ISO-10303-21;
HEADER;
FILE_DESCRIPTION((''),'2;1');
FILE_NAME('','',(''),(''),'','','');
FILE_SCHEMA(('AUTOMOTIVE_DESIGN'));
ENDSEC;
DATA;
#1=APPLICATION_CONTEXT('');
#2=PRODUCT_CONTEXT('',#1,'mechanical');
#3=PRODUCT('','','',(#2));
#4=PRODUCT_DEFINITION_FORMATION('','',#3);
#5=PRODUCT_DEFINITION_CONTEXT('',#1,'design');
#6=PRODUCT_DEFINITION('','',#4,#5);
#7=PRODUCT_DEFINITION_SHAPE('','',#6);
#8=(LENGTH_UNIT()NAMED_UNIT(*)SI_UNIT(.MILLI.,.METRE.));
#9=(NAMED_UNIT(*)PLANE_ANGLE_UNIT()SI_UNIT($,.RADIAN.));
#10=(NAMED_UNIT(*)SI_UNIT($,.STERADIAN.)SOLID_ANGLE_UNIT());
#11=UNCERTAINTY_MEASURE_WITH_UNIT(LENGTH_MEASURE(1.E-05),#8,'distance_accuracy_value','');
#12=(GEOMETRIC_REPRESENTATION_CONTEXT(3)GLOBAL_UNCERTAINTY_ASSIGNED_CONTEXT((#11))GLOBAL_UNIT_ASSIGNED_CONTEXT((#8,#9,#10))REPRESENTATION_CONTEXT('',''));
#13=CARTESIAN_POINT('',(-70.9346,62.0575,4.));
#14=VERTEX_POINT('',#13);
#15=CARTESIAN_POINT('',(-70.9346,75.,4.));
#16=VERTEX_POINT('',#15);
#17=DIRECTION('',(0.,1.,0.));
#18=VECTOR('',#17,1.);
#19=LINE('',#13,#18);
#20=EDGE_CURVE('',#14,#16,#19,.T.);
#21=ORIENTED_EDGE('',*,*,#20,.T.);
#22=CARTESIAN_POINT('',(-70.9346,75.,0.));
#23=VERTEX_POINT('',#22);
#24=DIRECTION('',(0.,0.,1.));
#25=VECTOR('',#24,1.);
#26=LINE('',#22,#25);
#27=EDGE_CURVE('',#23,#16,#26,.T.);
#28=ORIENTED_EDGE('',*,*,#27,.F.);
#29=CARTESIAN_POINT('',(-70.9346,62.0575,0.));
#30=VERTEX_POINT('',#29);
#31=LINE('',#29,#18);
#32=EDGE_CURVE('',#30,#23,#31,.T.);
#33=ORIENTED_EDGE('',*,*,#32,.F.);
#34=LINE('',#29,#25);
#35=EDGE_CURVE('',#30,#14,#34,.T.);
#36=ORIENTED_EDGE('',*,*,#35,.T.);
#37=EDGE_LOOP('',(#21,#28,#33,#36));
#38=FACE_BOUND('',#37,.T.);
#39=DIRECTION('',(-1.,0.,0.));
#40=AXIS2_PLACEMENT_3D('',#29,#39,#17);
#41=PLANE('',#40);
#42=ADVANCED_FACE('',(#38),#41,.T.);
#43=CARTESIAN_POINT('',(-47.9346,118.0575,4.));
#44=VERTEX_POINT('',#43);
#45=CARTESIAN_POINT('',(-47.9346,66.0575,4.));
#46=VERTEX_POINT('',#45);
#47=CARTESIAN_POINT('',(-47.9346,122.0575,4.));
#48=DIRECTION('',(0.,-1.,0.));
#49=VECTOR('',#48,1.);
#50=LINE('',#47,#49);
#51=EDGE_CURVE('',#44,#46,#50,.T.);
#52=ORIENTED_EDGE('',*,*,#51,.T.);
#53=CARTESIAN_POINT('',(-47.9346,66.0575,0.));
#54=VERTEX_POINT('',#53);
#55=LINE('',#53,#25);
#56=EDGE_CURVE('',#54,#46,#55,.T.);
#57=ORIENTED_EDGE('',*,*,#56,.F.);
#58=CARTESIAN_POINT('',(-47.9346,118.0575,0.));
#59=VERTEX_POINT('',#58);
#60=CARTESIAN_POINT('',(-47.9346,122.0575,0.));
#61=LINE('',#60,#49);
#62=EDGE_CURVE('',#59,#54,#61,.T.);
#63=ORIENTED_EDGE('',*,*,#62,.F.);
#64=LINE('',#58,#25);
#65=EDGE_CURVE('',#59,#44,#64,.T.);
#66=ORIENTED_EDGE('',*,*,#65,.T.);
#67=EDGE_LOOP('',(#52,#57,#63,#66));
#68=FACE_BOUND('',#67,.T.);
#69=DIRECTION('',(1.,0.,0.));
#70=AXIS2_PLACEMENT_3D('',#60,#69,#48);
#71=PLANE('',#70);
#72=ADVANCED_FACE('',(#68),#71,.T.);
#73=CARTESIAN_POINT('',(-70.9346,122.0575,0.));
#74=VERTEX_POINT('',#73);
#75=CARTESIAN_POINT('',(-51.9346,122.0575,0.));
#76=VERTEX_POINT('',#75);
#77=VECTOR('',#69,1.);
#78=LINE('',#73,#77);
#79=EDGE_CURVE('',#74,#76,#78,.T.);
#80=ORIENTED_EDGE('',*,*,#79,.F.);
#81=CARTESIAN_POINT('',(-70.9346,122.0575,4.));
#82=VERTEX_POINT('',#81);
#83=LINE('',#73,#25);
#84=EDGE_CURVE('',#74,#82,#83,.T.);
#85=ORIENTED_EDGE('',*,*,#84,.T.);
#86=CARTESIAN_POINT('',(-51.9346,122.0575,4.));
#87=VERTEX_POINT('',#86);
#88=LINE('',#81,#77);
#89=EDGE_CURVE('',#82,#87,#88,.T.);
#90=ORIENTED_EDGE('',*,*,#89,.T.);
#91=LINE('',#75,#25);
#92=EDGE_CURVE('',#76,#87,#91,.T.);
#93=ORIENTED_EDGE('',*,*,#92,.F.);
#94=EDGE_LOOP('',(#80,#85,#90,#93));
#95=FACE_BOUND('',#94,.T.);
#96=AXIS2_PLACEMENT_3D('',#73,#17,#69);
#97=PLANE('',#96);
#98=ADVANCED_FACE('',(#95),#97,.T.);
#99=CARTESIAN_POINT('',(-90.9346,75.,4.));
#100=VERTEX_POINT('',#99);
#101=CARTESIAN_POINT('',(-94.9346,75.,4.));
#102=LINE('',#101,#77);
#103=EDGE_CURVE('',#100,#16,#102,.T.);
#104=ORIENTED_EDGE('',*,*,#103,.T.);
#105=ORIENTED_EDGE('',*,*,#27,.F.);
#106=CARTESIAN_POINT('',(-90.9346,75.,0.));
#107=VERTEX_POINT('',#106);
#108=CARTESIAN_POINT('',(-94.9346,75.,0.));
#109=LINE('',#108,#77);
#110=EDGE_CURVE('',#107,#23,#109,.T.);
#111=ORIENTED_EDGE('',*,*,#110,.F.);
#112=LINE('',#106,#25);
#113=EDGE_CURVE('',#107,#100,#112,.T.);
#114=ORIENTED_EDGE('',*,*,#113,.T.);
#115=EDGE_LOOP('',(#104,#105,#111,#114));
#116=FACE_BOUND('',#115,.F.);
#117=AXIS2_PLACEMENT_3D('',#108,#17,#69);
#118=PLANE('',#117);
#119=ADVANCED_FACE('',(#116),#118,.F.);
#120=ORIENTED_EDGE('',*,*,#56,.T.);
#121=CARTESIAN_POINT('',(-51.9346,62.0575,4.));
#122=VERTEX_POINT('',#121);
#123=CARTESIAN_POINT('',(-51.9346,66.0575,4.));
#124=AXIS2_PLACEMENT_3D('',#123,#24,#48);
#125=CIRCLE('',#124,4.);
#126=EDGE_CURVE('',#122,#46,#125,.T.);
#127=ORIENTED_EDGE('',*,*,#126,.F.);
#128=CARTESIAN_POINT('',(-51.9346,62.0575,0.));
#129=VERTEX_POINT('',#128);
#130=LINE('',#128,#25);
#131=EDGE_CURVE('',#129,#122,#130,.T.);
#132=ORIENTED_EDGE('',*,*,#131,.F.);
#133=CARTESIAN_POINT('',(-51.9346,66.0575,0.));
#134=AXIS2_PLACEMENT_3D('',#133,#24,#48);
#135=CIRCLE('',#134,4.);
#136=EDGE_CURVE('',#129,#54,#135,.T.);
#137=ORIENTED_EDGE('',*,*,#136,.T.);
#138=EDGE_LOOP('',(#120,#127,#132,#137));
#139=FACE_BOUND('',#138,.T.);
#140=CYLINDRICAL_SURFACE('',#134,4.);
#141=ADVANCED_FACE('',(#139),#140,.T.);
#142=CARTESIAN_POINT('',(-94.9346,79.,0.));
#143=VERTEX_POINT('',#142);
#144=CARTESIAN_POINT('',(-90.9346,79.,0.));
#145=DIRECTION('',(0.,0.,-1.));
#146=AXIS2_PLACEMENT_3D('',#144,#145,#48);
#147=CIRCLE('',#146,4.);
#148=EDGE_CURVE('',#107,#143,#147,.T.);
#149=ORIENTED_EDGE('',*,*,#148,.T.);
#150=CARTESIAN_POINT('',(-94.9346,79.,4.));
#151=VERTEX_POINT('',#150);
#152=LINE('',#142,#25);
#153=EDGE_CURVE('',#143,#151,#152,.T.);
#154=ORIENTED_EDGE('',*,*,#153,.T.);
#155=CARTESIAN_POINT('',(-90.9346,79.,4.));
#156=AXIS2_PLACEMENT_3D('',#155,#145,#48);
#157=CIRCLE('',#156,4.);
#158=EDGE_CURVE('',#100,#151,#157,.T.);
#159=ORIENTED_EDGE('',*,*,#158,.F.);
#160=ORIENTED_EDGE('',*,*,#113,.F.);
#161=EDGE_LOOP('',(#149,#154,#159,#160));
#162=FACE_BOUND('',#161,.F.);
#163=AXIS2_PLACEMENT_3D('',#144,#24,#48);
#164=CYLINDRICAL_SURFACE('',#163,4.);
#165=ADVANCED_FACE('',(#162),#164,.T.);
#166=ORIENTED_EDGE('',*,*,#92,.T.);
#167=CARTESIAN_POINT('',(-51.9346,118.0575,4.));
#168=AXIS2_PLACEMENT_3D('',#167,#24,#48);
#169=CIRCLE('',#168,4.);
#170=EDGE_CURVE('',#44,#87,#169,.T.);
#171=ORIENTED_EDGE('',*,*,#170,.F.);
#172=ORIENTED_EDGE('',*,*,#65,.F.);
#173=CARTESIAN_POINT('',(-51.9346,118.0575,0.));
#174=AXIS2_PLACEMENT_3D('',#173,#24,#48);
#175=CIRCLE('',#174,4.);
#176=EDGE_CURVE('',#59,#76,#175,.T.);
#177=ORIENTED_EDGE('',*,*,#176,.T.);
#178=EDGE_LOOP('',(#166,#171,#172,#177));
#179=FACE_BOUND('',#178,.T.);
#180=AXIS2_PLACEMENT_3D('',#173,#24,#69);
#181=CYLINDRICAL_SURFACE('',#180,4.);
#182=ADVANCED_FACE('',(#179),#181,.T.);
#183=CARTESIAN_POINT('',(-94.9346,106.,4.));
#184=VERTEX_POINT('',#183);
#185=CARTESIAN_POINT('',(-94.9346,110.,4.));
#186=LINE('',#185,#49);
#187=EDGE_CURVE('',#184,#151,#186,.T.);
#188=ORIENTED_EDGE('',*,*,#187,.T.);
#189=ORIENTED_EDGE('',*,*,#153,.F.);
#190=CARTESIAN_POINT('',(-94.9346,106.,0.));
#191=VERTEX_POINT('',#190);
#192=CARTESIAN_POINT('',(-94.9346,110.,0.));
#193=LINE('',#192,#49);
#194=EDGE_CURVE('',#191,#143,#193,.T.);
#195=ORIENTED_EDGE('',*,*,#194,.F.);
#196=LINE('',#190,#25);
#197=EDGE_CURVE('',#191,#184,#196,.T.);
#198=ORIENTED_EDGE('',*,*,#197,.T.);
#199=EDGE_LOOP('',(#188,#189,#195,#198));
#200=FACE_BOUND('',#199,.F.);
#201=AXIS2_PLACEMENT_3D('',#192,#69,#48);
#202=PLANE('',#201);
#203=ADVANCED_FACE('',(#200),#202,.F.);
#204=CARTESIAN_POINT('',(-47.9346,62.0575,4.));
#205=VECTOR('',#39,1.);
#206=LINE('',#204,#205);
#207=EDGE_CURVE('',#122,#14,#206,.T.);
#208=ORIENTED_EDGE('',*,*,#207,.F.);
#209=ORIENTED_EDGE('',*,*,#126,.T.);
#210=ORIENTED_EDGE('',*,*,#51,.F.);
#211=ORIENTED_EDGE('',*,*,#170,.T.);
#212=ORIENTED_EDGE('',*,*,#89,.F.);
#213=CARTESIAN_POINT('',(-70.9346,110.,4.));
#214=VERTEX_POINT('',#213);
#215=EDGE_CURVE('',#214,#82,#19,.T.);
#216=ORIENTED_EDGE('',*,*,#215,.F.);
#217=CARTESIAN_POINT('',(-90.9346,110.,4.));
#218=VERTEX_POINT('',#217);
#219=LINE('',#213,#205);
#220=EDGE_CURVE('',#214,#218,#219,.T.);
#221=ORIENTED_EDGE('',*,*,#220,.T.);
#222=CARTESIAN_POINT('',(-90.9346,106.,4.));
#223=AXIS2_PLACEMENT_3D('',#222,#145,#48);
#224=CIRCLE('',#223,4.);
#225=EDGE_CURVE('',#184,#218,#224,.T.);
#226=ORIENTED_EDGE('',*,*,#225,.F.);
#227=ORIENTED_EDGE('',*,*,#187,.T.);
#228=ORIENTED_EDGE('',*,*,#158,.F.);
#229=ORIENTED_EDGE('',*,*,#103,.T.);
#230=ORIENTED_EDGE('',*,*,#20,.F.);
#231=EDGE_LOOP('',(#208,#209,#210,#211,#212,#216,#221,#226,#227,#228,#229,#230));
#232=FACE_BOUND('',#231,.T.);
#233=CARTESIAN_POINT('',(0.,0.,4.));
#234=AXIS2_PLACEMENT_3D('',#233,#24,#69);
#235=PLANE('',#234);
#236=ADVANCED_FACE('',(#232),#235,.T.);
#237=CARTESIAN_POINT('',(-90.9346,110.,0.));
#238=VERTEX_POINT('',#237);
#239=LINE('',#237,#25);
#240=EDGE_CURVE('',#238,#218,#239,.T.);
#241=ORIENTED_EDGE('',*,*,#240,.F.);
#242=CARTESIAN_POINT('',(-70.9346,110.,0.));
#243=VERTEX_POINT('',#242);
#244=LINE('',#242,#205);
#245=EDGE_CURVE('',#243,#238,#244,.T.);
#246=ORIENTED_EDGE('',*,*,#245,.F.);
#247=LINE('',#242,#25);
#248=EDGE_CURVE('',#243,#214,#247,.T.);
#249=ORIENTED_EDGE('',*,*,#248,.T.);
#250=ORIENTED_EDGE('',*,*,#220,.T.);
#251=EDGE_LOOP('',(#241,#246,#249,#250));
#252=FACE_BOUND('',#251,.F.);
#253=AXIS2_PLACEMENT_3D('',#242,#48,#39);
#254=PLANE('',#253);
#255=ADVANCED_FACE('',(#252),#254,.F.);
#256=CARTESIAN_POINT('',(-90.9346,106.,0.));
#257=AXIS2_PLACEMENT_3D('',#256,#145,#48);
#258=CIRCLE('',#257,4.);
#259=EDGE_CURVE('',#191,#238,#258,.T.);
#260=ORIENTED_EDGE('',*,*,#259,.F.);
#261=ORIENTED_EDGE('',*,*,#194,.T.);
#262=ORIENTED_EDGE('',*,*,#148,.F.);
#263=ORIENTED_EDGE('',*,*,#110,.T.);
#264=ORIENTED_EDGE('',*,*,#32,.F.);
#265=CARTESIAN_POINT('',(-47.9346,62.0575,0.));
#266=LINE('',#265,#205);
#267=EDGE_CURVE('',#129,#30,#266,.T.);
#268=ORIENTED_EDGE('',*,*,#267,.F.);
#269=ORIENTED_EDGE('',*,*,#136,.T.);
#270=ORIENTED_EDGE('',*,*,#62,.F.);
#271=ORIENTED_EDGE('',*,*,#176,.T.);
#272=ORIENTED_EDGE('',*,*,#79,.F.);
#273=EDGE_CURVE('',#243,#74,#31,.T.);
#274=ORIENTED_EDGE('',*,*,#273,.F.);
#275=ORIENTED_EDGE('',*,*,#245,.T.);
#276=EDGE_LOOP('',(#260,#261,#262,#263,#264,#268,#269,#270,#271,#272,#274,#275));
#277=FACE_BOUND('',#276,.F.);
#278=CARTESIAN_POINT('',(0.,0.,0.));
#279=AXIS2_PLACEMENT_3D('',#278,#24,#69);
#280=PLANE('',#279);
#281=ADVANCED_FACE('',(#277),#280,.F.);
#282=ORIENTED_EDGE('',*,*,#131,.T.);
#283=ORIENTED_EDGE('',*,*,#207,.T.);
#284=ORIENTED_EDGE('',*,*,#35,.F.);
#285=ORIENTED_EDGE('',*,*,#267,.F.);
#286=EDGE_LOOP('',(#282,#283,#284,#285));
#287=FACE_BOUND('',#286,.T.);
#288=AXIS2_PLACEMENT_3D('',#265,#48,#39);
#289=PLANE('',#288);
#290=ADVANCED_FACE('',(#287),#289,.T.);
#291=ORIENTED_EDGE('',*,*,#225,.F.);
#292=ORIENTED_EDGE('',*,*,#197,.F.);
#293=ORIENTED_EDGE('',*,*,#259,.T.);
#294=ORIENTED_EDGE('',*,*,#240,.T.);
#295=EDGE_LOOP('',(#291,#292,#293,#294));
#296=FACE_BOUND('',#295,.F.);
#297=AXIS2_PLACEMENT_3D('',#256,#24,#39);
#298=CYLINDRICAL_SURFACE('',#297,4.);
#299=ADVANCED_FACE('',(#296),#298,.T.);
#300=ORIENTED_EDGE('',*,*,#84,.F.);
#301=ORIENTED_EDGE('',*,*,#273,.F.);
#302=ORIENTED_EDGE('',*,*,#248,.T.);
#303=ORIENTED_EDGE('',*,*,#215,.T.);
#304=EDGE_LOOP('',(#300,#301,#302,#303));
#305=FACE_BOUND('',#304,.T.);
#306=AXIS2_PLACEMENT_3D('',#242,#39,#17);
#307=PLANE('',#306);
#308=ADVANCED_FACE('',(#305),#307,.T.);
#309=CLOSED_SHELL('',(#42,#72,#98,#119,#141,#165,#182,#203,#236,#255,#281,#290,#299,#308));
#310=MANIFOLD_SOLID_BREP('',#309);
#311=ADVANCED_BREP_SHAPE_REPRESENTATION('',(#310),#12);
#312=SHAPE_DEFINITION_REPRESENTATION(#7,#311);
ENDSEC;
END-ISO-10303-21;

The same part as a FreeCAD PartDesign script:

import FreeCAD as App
import Part
import Sketcher
from FreeCAD import Vector
Q = App.Units.Quantity


def edges_at(feature, points):
    """Names of the edges that pass closest to the given points."""
    edges = feature.Shape.Edges
    near = lambda p: min(range(len(edges)), key=lambda i: edges[i].distToShape(Part.Vertex(*p))[0])
    return sorted({f"Edge{near(p) + 1}" for p in points})


def add_polygon(sketch, points):
    """Adds a closed chain of lines whose ends are joined by coincident constraints."""
    first, n = sketch.GeometryCount, len(points)
    for a, b in zip(points, points[1:] + points[:1]):
        sketch.addGeometry(Part.LineSegment(App.Vector(*a, 0), App.Vector(*b, 0)), False)
    for i in range(n):
        sketch.addConstraint(Sketcher.Constraint("Coincident", first + i, 2, first + (i + 1) % n, 1))

doc = App.newDocument("Part")
body = doc.addObject("PartDesign::Body", "Body")

sketch1 = body.newObject("Sketcher::SketchObject", "Sketch")
sketch1.AttachmentSupport = (doc.getObject("XY_Plane"), [""])
sketch1.MapMode = "FlatFace"
add_polygon(sketch1, [(-71, 62), (-48, 62), (-48, 122), (-71, 122), (-71, 110), (-95, 110), (-95, 75), (-71, 75)])
sketch1.addConstraint([
    Sketcher.Constraint("Horizontal", 0),
    Sketcher.Constraint("Vertical", 1),
    Sketcher.Constraint("Horizontal", 2),
    Sketcher.Constraint("Vertical", 3),
    Sketcher.Constraint("Horizontal", 4),
    Sketcher.Constraint("Vertical", 5),
    Sketcher.Constraint("Horizontal", 6),
    Sketcher.Constraint("Vertical", 7),
    Sketcher.Constraint("Vertical", 3, 2, 6, 2),
    Sketcher.Constraint("DistanceX", 0, 1, 0, 2, Q("23 mm")),
    Sketcher.Constraint("DistanceX", 4, 2, 4, 1, Q("24 mm")),
    Sketcher.Constraint("DistanceY", 1, 1, 1, 2, Q("60 mm")),
    Sketcher.Constraint("DistanceY", 5, 2, 5, 1, Q("35 mm")),
    Sketcher.Constraint("DistanceY", -1, 1, 3, 2, Q("110 mm")),
    Sketcher.Constraint("DistanceY", 3, 2, 3, 1, Q("12.0575 mm")),
    Sketcher.Constraint("DistanceX", 0, 2, -1, 1, Q("47.9346 mm")),
])
pad1 = body.newObject("PartDesign::Pad", "Pad")
pad1.Profile = sketch1
pad1.Length = 4
doc.recompute()

fillet = body.newObject("PartDesign::Fillet", "Fillet")
fillet.Base = (pad1, edges_at(pad1, [(-47.935, 62.057, 2), (-47.935, 122.058, 2)]))
fillet.Radius = 4
doc.recompute()

fillet2 = body.newObject("PartDesign::Fillet", "Fillet001")
fillet2.Base = (fillet, edges_at(fillet, [(-94.935, 75, 2), (-94.935, 110, 2)]))
fillet2.Radius = 4

doc.recompute()
